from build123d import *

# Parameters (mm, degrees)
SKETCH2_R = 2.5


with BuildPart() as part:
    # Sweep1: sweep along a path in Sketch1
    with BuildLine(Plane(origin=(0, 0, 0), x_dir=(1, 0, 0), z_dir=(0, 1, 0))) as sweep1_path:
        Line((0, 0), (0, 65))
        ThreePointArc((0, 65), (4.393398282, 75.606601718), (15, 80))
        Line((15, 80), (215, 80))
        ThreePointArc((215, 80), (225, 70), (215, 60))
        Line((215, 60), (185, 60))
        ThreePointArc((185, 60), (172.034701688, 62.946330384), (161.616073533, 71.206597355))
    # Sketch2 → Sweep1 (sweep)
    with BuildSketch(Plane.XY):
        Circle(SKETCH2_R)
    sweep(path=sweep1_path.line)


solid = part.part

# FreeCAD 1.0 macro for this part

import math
import FreeCAD as App
import Part
import Sketcher

V = App.Vector
Q = App.Units.Quantity

doc = App.newDocument("Part")
body = doc.addObject("PartDesign::Body", "Body")

sketch1 = doc.addObject("Sketcher::SketchObject", "Sketch")
body.addObject(sketch1)
sketch1.AttachmentSupport = (doc.XY_Plane, [""])
sketch1.MapMode = "FlatFace"
sketch1.addGeometry(Part.Circle(V(0, 0, 0), V(0, 0, 1), 2.5), False)
sketch1.addConstraint([
    Sketcher.Constraint("Coincident", 0, 3, -1, 1),
    Sketcher.Constraint("Diameter", 0, Q("5 mm")),
])

sketch2 = doc.addObject("Sketcher::SketchObject", "Sketch001")
body.addObject(sketch2)
sketch2.AttachmentSupport = (doc.XZ_Plane, [""])
sketch2.MapMode = "FlatFace"
sketch2.addGeometry([
    Part.LineSegment(V(0, 0, 0), V(0, -65, 0)),
    Part.ArcOfCircle(Part.Circle(V(15, -65, 0), V(0, 0, 1), 15), math.radians(180), math.radians(270)),
    Part.LineSegment(V(15, -80, 0), V(215, -80, 0)),
    Part.ArcOfCircle(Part.Circle(V(215, -70, 0), V(0, 0, 1), 10), math.radians(-90), math.radians(90)),
    Part.LineSegment(V(215, -60, 0), V(185, -60, 0)),
    Part.ArcOfCircle(Part.Circle(V(185, -90, 0), V(0, 0, 1), 30), math.radians(90), math.radians(141)),
], False)
sketch2.addConstraint([
    Sketcher.Constraint("Tangent", 0, 2, 1, 1),
    Sketcher.Constraint("Tangent", 1, 2, 2, 1),
    Sketcher.Constraint("Tangent", 2, 2, 3, 1),
    Sketcher.Constraint("Tangent", 3, 2, 4, 1),
    Sketcher.Constraint("Tangent", 4, 2, 5, 1),
    Sketcher.Constraint("Vertical", 0),
    Sketcher.Constraint("Horizontal", 2),
    Sketcher.Constraint("Horizontal", 4),
    Sketcher.Constraint("Coincident", 0, 1, -1, 1),
    Sketcher.Constraint("Radius", 1, Q("15 mm")),
    Sketcher.Constraint("Radius", 3, Q("10 mm")),
    Sketcher.Constraint("Radius", 5, Q("30 mm")),
    Sketcher.Constraint("DistanceX", 2, 1, 2, 2, Q("200 mm")),
    Sketcher.Constraint("DistanceX", 4, 2, 4, 1, Q("30 mm")),
    Sketcher.Constraint("DistanceY", 0, 2, 0, 1, Q("65 mm")),
    Sketcher.Constraint("DistanceX", -1, 1, 5, 2, Q("161.616074 mm")),
])
doc.recompute()

additivepipe = doc.addObject("PartDesign::AdditivePipe", "AdditivePipe")
body.addObject(additivepipe)
additivepipe.Profile = sketch1
additivepipe.Spine = (sketch2, ["Edge1", "Edge2", "Edge3", "Edge4", "Edge5", "Edge6"])

doc.recompute()
